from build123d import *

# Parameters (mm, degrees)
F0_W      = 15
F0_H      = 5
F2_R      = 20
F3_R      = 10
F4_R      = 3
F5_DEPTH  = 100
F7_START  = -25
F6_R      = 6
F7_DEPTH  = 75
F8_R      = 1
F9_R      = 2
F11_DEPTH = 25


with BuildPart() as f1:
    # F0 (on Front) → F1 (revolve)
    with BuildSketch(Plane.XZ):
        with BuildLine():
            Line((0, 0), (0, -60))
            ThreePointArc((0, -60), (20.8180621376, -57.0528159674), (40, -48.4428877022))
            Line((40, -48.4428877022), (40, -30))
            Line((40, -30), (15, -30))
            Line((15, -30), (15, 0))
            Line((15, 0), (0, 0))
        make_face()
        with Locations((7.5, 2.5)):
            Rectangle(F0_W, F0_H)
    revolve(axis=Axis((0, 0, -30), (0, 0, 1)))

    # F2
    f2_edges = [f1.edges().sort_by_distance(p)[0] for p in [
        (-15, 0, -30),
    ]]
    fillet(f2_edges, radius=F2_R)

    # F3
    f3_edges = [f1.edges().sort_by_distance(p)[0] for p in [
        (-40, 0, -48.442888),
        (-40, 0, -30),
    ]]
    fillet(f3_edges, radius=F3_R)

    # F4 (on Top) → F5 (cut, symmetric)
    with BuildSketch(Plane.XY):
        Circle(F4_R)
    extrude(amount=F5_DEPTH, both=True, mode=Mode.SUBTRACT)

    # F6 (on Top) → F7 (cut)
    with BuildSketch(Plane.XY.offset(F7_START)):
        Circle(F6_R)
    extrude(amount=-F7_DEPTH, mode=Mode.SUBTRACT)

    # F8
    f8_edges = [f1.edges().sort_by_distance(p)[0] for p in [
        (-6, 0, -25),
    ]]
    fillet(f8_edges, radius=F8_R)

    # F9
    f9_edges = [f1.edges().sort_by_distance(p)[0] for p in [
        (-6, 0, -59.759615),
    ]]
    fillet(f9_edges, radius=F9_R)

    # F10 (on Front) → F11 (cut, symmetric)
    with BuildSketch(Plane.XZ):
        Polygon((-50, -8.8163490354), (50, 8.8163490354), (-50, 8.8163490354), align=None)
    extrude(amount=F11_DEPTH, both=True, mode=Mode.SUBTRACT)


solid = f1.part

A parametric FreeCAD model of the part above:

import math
import FreeCAD as App
import Part
import Sketcher

V = App.Vector
Q = App.Units.Quantity


def edges_at(feature, points):
    """Names of the edges that pass closest to the given points."""
    edges = feature.Shape.Edges
    near = lambda p: min(range(len(edges)), key=lambda i: edges[i].distToShape(Part.Vertex(*p))[0])
    return sorted({f"Edge{near(p) + 1}" for p in points})


def add_polygon(sketch, points):
    """Adds a closed chain of lines whose ends are joined by coincident constraints."""
    first, n = sketch.GeometryCount, len(points)
    for a, b in zip(points, points[1:] + points[:1]):
        sketch.addGeometry(Part.LineSegment(App.Vector(*a, 0), App.Vector(*b, 0)), False)
    for i in range(n):
        sketch.addConstraint(Sketcher.Constraint("Coincident", first + i, 2, first + (i + 1) % n, 1))

doc = App.newDocument("Part")
body = doc.addObject("PartDesign::Body", "Body")

# Sketch on XZ plane
sketch1 = doc.addObject("Sketcher::SketchObject", "Sketch")
body.addObject(sketch1)
sketch1.AttachmentSupport = (doc.XZ_Plane, [""])
sketch1.MapMode = "FlatFace"
sketch1.addGeometry([
    Part.ArcOfCircle(Part.Circle(V(0, 15, 0), V(0, 0, 1), 75), math.radians(-90), math.radians(-58)),  # 0
    Part.LineSegment(V(40, -48, 0), V(40, -30, 0)),  # 1
    Part.LineSegment(V(40, -30, 0), V(15, -30, 0)),  # 2
    Part.LineSegment(V(15, -30, 0), V(15, 5, 0)),  # 3
    Part.LineSegment(V(15, 5, 0), V(0, 5, 0)),  # 4
    Part.LineSegment(V(0, 5, 0), V(0, -60, 0)),  # 5
], False)
sketch1.addConstraint([
    Sketcher.Constraint("Coincident", 0, 2, 1, 1),
    Sketcher.Constraint("Coincident", 1, 2, 2, 1),
    Sketcher.Constraint("Coincident", 2, 2, 3, 1),
    Sketcher.Constraint("Coincident", 3, 2, 4, 1),
    Sketcher.Constraint("Coincident", 4, 2, 5, 1),
    Sketcher.Constraint("Coincident", 5, 2, 0, 1),
    Sketcher.Constraint("Vertical", 1),
    Sketcher.Constraint("Horizontal", 2),
    Sketcher.Constraint("Vertical", 3),
    Sketcher.Constraint("Horizontal", 4),
    Sketcher.Constraint("Vertical", 5),
    Sketcher.Constraint("PointOnObject", 0, 3, -2),
    Sketcher.Constraint("PointOnObject", 4, 2, -2),
    Sketcher.Constraint("Radius", 0, 75.0),
    Sketcher.Constraint("DistanceX", 2, 2, 2, 1, 25.0),
    Sketcher.Constraint("DistanceX", 4, 2, 4, 1, 15.0),
    Sketcher.Constraint("DistanceY", 3, 1, 3, 2, 35.0),
    Sketcher.Constraint("DistanceY", 5, 2, 5, 1, 65.0),
    Sketcher.Constraint("DistanceY", -1, 1, 0, 3, 15.0),
])
revolution = doc.addObject("PartDesign::Revolution", "Revolution")
body.addObject(revolution)
revolution.Profile = sketch1
revolution.ReferenceAxis = (sketch1, ["V_Axis"])
revolution.Angle = 360
doc.recompute()

fillet = doc.addObject("PartDesign::Fillet", "Fillet")
body.addObject(fillet)
fillet.Base = (revolution, edges_at(revolution, [(-15, 0, -30)]))
fillet.Radius = 20
doc.recompute()

fillet2 = doc.addObject("PartDesign::Fillet", "Fillet001")
body.addObject(fillet2)
fillet2.Base = (fillet, edges_at(fillet, [(-40, 0, -48.443), (-40, 0, -30)]))
fillet2.Radius = 10

# Sketch on XY plane
sketch2 = doc.addObject("Sketcher::SketchObject", "Sketch001")
body.addObject(sketch2)
sketch2.AttachmentSupport = (doc.XY_Plane, [""])
sketch2.MapMode = "FlatFace"
sketch2.addGeometry(Part.Circle(V(0, 0, 0), V(0, 0, 1), 3), False)
sketch2.addConstraint([
    Sketcher.Constraint("Coincident", 0, 3, -1, 1),
    Sketcher.Constraint("Diameter", 0, 6.0),
])
pocket1 = doc.addObject("PartDesign::Pocket", "Pocket")
body.addObject(pocket1)
pocket1.Profile = sketch2
pocket1.Length = 200
pocket1.Midplane = True

# Sketch on XY plane
sketch3 = doc.addObject("Sketcher::SketchObject", "Sketch002")
body.addObject(sketch3)
sketch3.AttachmentSupport = (doc.XY_Plane, [""])
sketch3.MapMode = "FlatFace"
sketch3.AttachmentOffset = App.Placement(V(0, 0, -25), App.Rotation())
sketch3.addGeometry(Part.Circle(V(0, 0, 0), V(0, 0, 1), 6), False)
sketch3.addConstraint([
    Sketcher.Constraint("Coincident", 0, 3, -1, 1),
    Sketcher.Constraint("Diameter", 0, 12.0),
])
pocket2 = doc.addObject("PartDesign::Pocket", "Pocket001")
body.addObject(pocket2)
pocket2.Profile = sketch3
pocket2.Length = 75
doc.recompute()

fillet3 = doc.addObject("PartDesign::Fillet", "Fillet002")
body.addObject(fillet3)
fillet3.Base = (pocket2, edges_at(pocket2, [(-6, 0, -25)]))
fillet3.Radius = 1
doc.recompute()

fillet4 = doc.addObject("PartDesign::Fillet", "Fillet003")
body.addObject(fillet4)
fillet4.Base = (fillet3, edges_at(fillet3, [(-6, 0, -59.76)]))
fillet4.Radius = 2

# Sketch on XZ plane
sketch4 = doc.addObject("Sketcher::SketchObject", "Sketch003")
body.addObject(sketch4)
sketch4.AttachmentSupport = (doc.XZ_Plane, [""])
sketch4.MapMode = "FlatFace"
add_polygon(sketch4, [(-50, -9), (50, 9), (-50, 9)])  # lines 0-2
sketch4.addConstraint([
    Sketcher.Constraint("Horizontal", 1),
    Sketcher.Constraint("Vertical", 2),
    Sketcher.Constraint("Symmetric", 0, 2, 2, 2, -1, 1),
    Sketcher.Constraint("DistanceX", 1, 2, 1, 1, 100.0),
    Sketcher.Constraint("Angle", 0, Q("10 deg")),
])
pocket3 = doc.addObject("PartDesign::Pocket", "Pocket002")
body.addObject(pocket3)
pocket3.Profile = sketch4
pocket3.Length = 50
pocket3.Midplane = True

doc.recompute()
